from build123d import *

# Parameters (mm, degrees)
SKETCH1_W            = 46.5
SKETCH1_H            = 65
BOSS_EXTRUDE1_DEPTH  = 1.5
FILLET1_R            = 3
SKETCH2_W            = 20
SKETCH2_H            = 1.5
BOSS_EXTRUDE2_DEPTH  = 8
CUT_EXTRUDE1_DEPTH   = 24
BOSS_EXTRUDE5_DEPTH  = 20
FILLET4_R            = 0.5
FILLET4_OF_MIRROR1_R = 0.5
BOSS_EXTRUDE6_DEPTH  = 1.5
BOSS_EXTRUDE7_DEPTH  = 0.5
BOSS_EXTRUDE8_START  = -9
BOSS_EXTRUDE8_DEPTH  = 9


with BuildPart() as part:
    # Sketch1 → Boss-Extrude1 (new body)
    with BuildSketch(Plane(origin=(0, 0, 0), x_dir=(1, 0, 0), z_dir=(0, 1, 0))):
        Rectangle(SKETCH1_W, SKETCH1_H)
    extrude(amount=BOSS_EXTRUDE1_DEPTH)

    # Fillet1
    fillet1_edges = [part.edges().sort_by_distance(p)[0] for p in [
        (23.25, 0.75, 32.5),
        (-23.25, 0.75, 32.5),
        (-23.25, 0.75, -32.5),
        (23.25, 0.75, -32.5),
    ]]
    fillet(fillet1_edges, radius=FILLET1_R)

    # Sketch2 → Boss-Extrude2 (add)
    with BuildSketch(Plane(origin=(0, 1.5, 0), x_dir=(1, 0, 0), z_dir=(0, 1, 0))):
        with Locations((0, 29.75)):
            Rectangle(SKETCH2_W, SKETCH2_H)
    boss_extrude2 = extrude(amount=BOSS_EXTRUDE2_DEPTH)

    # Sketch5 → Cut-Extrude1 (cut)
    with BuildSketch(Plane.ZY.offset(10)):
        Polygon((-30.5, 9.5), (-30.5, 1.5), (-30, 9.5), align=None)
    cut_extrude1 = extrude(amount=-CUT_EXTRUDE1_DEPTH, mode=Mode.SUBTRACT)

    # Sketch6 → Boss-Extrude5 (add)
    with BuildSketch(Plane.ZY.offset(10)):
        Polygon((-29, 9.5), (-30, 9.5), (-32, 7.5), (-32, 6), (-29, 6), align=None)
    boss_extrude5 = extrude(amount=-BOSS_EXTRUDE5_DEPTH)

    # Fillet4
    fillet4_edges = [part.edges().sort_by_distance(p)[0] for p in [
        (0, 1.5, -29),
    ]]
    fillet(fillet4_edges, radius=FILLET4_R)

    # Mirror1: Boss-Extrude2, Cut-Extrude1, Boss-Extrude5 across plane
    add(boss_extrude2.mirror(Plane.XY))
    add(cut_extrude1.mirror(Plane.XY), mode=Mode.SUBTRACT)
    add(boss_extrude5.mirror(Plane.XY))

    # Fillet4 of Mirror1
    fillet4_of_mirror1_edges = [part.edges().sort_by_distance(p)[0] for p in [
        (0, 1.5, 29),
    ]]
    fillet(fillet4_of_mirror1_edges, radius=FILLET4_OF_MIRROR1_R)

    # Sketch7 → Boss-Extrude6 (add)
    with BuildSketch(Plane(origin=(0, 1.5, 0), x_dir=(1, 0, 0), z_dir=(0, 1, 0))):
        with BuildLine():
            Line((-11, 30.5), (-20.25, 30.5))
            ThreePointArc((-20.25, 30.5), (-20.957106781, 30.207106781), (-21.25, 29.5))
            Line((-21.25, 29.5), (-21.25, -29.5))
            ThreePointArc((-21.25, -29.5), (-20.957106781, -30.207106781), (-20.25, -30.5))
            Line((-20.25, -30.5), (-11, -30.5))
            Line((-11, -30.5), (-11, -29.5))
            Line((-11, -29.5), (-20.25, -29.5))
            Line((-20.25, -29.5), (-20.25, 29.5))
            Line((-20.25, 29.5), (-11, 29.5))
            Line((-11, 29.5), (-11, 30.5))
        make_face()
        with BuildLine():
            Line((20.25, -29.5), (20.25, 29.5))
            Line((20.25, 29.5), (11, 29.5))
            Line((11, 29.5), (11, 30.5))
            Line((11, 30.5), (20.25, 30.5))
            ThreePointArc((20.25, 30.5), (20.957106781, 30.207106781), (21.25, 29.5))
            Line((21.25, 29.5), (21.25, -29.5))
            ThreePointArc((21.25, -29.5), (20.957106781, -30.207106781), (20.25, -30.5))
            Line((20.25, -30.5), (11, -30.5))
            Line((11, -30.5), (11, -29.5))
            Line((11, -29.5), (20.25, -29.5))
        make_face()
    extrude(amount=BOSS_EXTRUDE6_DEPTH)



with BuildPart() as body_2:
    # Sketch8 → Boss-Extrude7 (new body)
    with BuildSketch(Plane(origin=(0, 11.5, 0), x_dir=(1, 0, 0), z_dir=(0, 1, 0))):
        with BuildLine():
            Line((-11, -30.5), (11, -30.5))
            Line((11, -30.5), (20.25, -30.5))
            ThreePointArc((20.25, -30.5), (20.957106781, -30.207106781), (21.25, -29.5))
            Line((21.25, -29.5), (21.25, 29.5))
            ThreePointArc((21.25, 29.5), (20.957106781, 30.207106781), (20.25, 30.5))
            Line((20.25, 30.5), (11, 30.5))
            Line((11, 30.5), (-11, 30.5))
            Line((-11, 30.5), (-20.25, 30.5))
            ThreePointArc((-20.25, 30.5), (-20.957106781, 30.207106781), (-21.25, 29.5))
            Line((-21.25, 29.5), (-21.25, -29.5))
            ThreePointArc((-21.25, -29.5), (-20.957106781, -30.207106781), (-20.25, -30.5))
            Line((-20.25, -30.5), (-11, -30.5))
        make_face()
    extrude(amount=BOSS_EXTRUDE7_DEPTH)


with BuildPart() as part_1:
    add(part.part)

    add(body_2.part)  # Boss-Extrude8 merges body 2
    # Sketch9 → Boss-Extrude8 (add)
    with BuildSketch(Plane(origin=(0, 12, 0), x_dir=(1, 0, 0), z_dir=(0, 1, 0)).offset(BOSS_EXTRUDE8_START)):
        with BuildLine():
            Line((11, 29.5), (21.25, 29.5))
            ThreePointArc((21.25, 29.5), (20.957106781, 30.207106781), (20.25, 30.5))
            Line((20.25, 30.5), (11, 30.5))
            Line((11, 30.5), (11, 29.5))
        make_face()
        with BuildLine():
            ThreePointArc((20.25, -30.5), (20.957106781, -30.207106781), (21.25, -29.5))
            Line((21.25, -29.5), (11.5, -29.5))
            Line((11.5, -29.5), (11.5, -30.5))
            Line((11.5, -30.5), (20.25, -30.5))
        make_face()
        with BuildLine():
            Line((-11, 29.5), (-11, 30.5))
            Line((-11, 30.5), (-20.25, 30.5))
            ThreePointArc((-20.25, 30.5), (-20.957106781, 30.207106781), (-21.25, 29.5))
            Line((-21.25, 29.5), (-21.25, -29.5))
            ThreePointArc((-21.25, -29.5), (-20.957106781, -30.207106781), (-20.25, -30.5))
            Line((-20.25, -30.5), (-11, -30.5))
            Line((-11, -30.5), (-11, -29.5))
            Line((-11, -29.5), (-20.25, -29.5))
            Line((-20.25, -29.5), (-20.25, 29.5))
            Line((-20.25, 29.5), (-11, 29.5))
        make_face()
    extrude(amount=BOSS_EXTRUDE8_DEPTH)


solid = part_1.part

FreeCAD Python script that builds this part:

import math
import FreeCAD as App
import Part
import Sketcher
from FreeCAD import Vector
Q = App.Units.Quantity


def edges_at(feature, points):
    """Names of the edges that pass closest to the given points."""
    edges = feature.Shape.Edges
    near = lambda p: min(range(len(edges)), key=lambda i: edges[i].distToShape(Part.Vertex(*p))[0])
    return sorted({f"Edge{near(p) + 1}" for p in points})

doc = App.newDocument("Part")
params = doc.addObject("Spreadsheet::Sheet", "Params")
for row, (alias, value) in enumerate([
    ("sketch1_height", "65 mm"),
    ("sketch1_width", "46.5 mm"),
    ("pad1_length", "1.5 mm"),
    ("fillet_radius", "3 mm"),
    ("sketch2_width", "20 mm"),
    ("sketch2_height", "1.5 mm"),
    ("pad2_length", "8 mm"),
    ("sketch3_width", "8 mm"),
    ("sketch3_height", "0.5 mm"),
    ("pocket1_length", "24 mm"),
    ("sketch4_height", "1 mm"),
    ("sketch4_height2", "3 mm"),
    ("sketch4_width", "1.5 mm"),
    ("pad3_length", "20 mm"),
    ("fillet2_radius", "0.5 mm"),
    ("fillet3_radius", "0.5 mm"),
    ("sketch5_radius", "1 mm"),
    ("sketch5_height", "59 mm"),
    ("sketch5_width", "9.25 mm"),
    ("pad4_length", "1.5 mm"),
    ("sketch6_radius", "1 mm"),
    ("sketch6_height", "59 mm"),
    ("sketch6_width", "40.5 mm"),
    ("pad5_length", "0.5 mm"),
    ("sketch7_radius", "1 mm"),
    ("sketch7_height", "59 mm"),
    ("sketch7_width", "10.25 mm"),
    ("sketch7_width2", "9.75 mm"),
    ("pad6_length", "9 mm"),
], start=1):
    params.set(f"A{row}", alias)
    params.set(f"B{row}", "=" + value)
    params.setAlias(f"B{row}", alias)

body = doc.addObject("PartDesign::Body", "Body")

sketch1 = doc.addObject("Sketcher::SketchObject", "Sketch")
body.addObject(sketch1)
sketch1.AttachmentSupport = (doc.XZ_Plane, [""])
sketch1.MapMode = "FlatFace"
sketch1.addGeometry([
    Part.LineSegment(Vector(-23, -32, 0), Vector(-23, 32, 0)),
    Part.LineSegment(Vector(-23, 32, 0), Vector(23, 32, 0)),
    Part.LineSegment(Vector(23, 32, 0), Vector(23, -32, 0)),
    Part.LineSegment(Vector(23, -32, 0), Vector(-23, -32, 0)),
], False)
sketch1.addConstraint([
    Sketcher.Constraint("Coincident", 0, 2, 1, 1),
    Sketcher.Constraint("Coincident", 1, 2, 2, 1),
    Sketcher.Constraint("Coincident", 2, 2, 3, 1),
    Sketcher.Constraint("Coincident", 3, 2, 0, 1),
    Sketcher.Constraint("Vertical", 0),
    Sketcher.Constraint("Horizontal", 1),
    Sketcher.Constraint("Vertical", 2),
    Sketcher.Constraint("Horizontal", 3),
    Sketcher.Constraint("Symmetric", 0, 2, 2, 2, -1, 1),
    Sketcher.Constraint("DistanceY", 0, 1, 0, 2, 65.0),
    Sketcher.Constraint("DistanceX", 1, 1, 1, 2, 46.5),
])
sketch1.setExpression("Constraints[9]", "Params.sketch1_height")
sketch1.setExpression("Constraints[10]", "Params.sketch1_width")
pad1 = doc.addObject("PartDesign::Pad", "Pad")
body.addObject(pad1)
pad1.Profile = sketch1
pad1.setExpression("Length", "Params.pad1_length")
pad1.Reversed = True
doc.recompute()

fillet = doc.addObject("PartDesign::Fillet", "Fillet")
body.addObject(fillet)
fillet.Base = (pad1, edges_at(pad1, [
    (23.25, 0.75, 32.5),
    (-23.25, 0.75, 32.5),
    (-23.25, 0.75, -32.5),
    (23.25, 0.75, -32.5),
]))
fillet.setExpression("Radius", "Params.fillet_radius")

sketch2 = doc.addObject("Sketcher::SketchObject", "Sketch001")
body.addObject(sketch2)
sketch2.AttachmentSupport = (doc.XZ_Plane, [""])
sketch2.MapMode = "FlatFace"
sketch2.AttachmentOffset = App.Placement(Vector(0, 0, -1.5), App.Rotation())
sketch2.addGeometry([
    Part.LineSegment(Vector(-10, -30.5, 0), Vector(-10, -29, 0)),
    Part.LineSegment(Vector(-10, -29, 0), Vector(10, -29, 0)),
    Part.LineSegment(Vector(10, -29, 0), Vector(10, -30.5, 0)),
    Part.LineSegment(Vector(10, -30.5, 0), Vector(-10, -30.5, 0)),
], False)
sketch2.addConstraint([
    Sketcher.Constraint("Coincident", 0, 2, 1, 1),
    Sketcher.Constraint("Coincident", 1, 2, 2, 1),
    Sketcher.Constraint("Coincident", 2, 2, 3, 1),
    Sketcher.Constraint("Coincident", 3, 2, 0, 1),
    Sketcher.Constraint("Vertical", 0),
    Sketcher.Constraint("Horizontal", 1),
    Sketcher.Constraint("Vertical", 2),
    Sketcher.Constraint("Horizontal", 3),
    Sketcher.Constraint("DistanceX", 1, 1, 1, 2, 20.0),
    Sketcher.Constraint("DistanceY", 0, 1, 0, 2, 1.5),
    Sketcher.Constraint("DistanceX", 0, 2, -1, 1, 10.0),
    Sketcher.Constraint("DistanceY", 0, 2, -1, 1, 29.0),
])
sketch2.setExpression("Constraints[8]", "Params.sketch2_width")
sketch2.setExpression("Constraints[9]", "Params.sketch2_height")
pad2 = doc.addObject("PartDesign::Pad", "Pad001")
body.addObject(pad2)
pad2.Profile = sketch2
pad2.setExpression("Length", "Params.pad2_length")
pad2.Reversed = True

sketch3 = doc.addObject("Sketcher::SketchObject", "Sketch002")
body.addObject(sketch3)
sketch3.AttachmentSupport = (doc.YZ_Plane, [""])
sketch3.MapMode = "FlatFace"
sketch3.AttachmentOffset = App.Placement(Vector(0, 0, -10), App.Rotation())
sketch3.addGeometry([
    Part.LineSegment(Vector(9.5, -30.5, 0), Vector(1.5, -30.5, 0)),
    Part.LineSegment(Vector(1.5, -30.5, 0), Vector(9.5, -30, 0)),
    Part.LineSegment(Vector(9.5, -30, 0), Vector(9.5, -30.5, 0)),
], False)
sketch3.addConstraint([
    Sketcher.Constraint("Coincident", 0, 2, 1, 1),
    Sketcher.Constraint("Coincident", 1, 2, 2, 1),
    Sketcher.Constraint("Coincident", 2, 2, 0, 1),
    Sketcher.Constraint("Horizontal", 0),
    Sketcher.Constraint("Vertical", 2),
    Sketcher.Constraint("DistanceX", 0, 2, 0, 1, 8.0),
    Sketcher.Constraint("DistanceY", 2, 2, 2, 1, 0.5),
    Sketcher.Constraint("DistanceY", 1, 2, -1, 1, 30.0),
    Sketcher.Constraint("DistanceX", -1, 1, 0, 2, 1.5),
])
sketch3.setExpression("Constraints[5]", "Params.sketch3_width")
sketch3.setExpression("Constraints[6]", "Params.sketch3_height")
pocket1 = doc.addObject("PartDesign::Pocket", "Pocket")
body.addObject(pocket1)
pocket1.Profile = sketch3
pocket1.setExpression("Length", "Params.pocket1_length")
pocket1.Reversed = True

sketch4 = doc.addObject("Sketcher::SketchObject", "Sketch003")
body.addObject(sketch4)
sketch4.AttachmentSupport = (doc.YZ_Plane, [""])
sketch4.MapMode = "FlatFace"
sketch4.AttachmentOffset = App.Placement(Vector(0, 0, -10), App.Rotation())
sketch4.addGeometry([
    Part.LineSegment(Vector(9.5, -29, 0), Vector(9.5, -30, 0)),
    Part.LineSegment(Vector(9.5, -30, 0), Vector(7.5, -32, 0)),
    Part.LineSegment(Vector(7.5, -32, 0), Vector(6, -32, 0)),
    Part.LineSegment(Vector(6, -32, 0), Vector(6, -29, 0)),
    Part.LineSegment(Vector(6, -29, 0), Vector(9.5, -29, 0)),
], False)
sketch4.addConstraint([
    Sketcher.Constraint("Coincident", 0, 2, 1, 1),
    Sketcher.Constraint("Coincident", 1, 2, 2, 1),
    Sketcher.Constraint("Coincident", 2, 2, 3, 1),
    Sketcher.Constraint("Coincident", 3, 2, 4, 1),
    Sketcher.Constraint("Coincident", 4, 2, 0, 1),
    Sketcher.Constraint("Vertical", 0),
    Sketcher.Constraint("Horizontal", 2),
    Sketcher.Constraint("Vertical", 3),
    Sketcher.Constraint("Horizontal", 4),
    Sketcher.Constraint("DistanceY", 0, 2, 0, 1, 1.0),
    Sketcher.Constraint("DistanceY", 3, 1, 3, 2, 3.0),
    Sketcher.Constraint("Angle", 1, Q("-135 deg")),
    Sketcher.Constraint("DistanceX", 2, 2, 2, 1, 1.5),
    Sketcher.Constraint("DistanceY", 0, 2, -1, 1, 30.0),
    Sketcher.Constraint("DistanceX", -1, 1, 2, 2, 6.0),
])
sketch4.setExpression("Constraints[9]", "Params.sketch4_height")
sketch4.setExpression("Constraints[10]", "Params.sketch4_height2")
sketch4.setExpression("Constraints[12]", "Params.sketch4_width")
pad3 = doc.addObject("PartDesign::Pad", "Pad002")
body.addObject(pad3)
pad3.Profile = sketch4
pad3.setExpression("Length", "Params.pad3_length")
doc.recompute()

fillet2 = doc.addObject("PartDesign::Fillet", "Fillet001")
body.addObject(fillet2)
fillet2.Base = (pad3, edges_at(pad3, [(0, 1.5, -29)]))
fillet2.setExpression("Radius", "Params.fillet2_radius")
doc.recompute()

mirrored = doc.addObject("PartDesign::Mirrored", "Mirrored")
body.addObject(mirrored)
mirrored.Originals = [pad2, pocket1, pad3]
mirrored.MirrorPlane = (doc.XY_Plane, [""])
body.Tip = mirrored
doc.recompute()

fillet3 = doc.addObject("PartDesign::Fillet", "Fillet002")
body.addObject(fillet3)
fillet3.Base = (mirrored, edges_at(mirrored, [(0, 1.5, 29)]))
fillet3.setExpression("Radius", "Params.fillet3_radius")

sketch5 = doc.addObject("Sketcher::SketchObject", "Sketch004")
body.addObject(sketch5)
sketch5.AttachmentSupport = (doc.XZ_Plane, [""])
sketch5.MapMode = "FlatFace"
sketch5.AttachmentOffset = App.Placement(Vector(0, 0, -1.5), App.Rotation())
sketch5.addGeometry([
    Part.LineSegment(Vector(-11, -30.5, 0), Vector(-20.2, -30.5, 0)),
    Part.ArcOfCircle(Part.Circle(Vector(-20.2, -29.5, 0), Vector(0, 0, 1), 1), math.radians(-180), math.radians(-90)),
    Part.LineSegment(Vector(-21.2, -29.5, 0), Vector(-21.2, 29.5, 0)),
    Part.ArcOfCircle(Part.Circle(Vector(-20.2, 29.5, 0), Vector(0, 0, 1), 1), math.radians(90), math.radians(180)),
    Part.LineSegment(Vector(-20.2, 30.5, 0), Vector(-11, 30.5, 0)),
    Part.LineSegment(Vector(-11, 30.5, 0), Vector(-11, 29.5, 0)),
    Part.LineSegment(Vector(-11, 29.5, 0), Vector(-20.2, 29.5, 0)),
    Part.LineSegment(Vector(-20.2, 29.5, 0), Vector(-20.2, -29.5, 0)),
    Part.LineSegment(Vector(-20.2, -29.5, 0), Vector(-11, -29.5, 0)),
    Part.LineSegment(Vector(-11, -29.5, 0), Vector(-11, -30.5, 0)),
    Part.LineSegment(Vector(20.2, -29.5, 0), Vector(20.2, 29.5, 0)),
    Part.LineSegment(Vector(20.2, 29.5, 0), Vector(11, 29.5, 0)),
    Part.LineSegment(Vector(11, 29.5, 0), Vector(11, 30.5, 0)),
    Part.LineSegment(Vector(11, 30.5, 0), Vector(20.2, 30.5, 0)),
    Part.ArcOfCircle(Part.Circle(Vector(20.2, 29.5, 0), Vector(0, 0, 1), 1), math.radians(0), math.radians(90)),
    Part.LineSegment(Vector(21.2, 29.5, 0), Vector(21.2, -29.5, 0)),
    Part.ArcOfCircle(Part.Circle(Vector(20.2, -29.5, 0), Vector(0, 0, 1), 1), math.radians(-90), math.radians(0)),
    Part.LineSegment(Vector(20.2, -30.5, 0), Vector(11, -30.5, 0)),
    Part.LineSegment(Vector(11, -30.5, 0), Vector(11, -29.5, 0)),
    Part.LineSegment(Vector(11, -29.5, 0), Vector(20.2, -29.5, 0)),
], False)
sketch5.addConstraint([
    Sketcher.Constraint("Tangent", 0, 2, 1, 2),
    Sketcher.Constraint("Tangent", 1, 1, 2, 1),
    Sketcher.Constraint("Tangent", 2, 2, 3, 2),
    Sketcher.Constraint("Tangent", 3, 1, 4, 1),
    Sketcher.Constraint("Coincident", 4, 2, 5, 1),
    Sketcher.Constraint("Coincident", 5, 2, 6, 1),
    Sketcher.Constraint("Coincident", 6, 2, 7, 1),
    Sketcher.Constraint("Coincident", 7, 2, 8, 1),
    Sketcher.Constraint("Coincident", 8, 2, 9, 1),
    Sketcher.Constraint("Coincident", 9, 2, 0, 1),
    Sketcher.Constraint("Coincident", 10, 2, 11, 1),
    Sketcher.Constraint("Coincident", 11, 2, 12, 1),
    Sketcher.Constraint("Coincident", 12, 2, 13, 1),
    Sketcher.Constraint("Tangent", 13, 2, 14, 2),
    Sketcher.Constraint("Tangent", 14, 1, 15, 1),
    Sketcher.Constraint("Tangent", 15, 2, 16, 2),
    Sketcher.Constraint("Tangent", 16, 1, 17, 1),
    Sketcher.Constraint("Coincident", 17, 2, 18, 1),
    Sketcher.Constraint("Coincident", 18, 2, 19, 1),
    Sketcher.Constraint("Coincident", 19, 2, 10, 1),
    Sketcher.Constraint("Horizontal", 0),
    Sketcher.Constraint("Vertical", 2),
    Sketcher.Constraint("Horizontal", 4),
    Sketcher.Constraint("Vertical", 5),
    Sketcher.Constraint("Horizontal", 6),
    Sketcher.Constraint("Vertical", 7),
    Sketcher.Constraint("Horizontal", 8),
    Sketcher.Constraint("Vertical", 9),
    Sketcher.Constraint("Vertical", 10),
    Sketcher.Constraint("Horizontal", 11),
    Sketcher.Constraint("Vertical", 12),
    Sketcher.Constraint("Horizontal", 13),
    Sketcher.Constraint("Vertical", 15),
    Sketcher.Constraint("Horizontal", 17),
    Sketcher.Constraint("Vertical", 18),
    Sketcher.Constraint("Horizontal", 19),
    Sketcher.Constraint("Coincident", 6, 2, 3, 3),
    Sketcher.Constraint("Coincident", 7, 2, 1, 3),
    Sketcher.Constraint("Coincident", 10, 2, 14, 3),
    Sketcher.Constraint("Coincident", 19, 2, 16, 3),
    Sketcher.Constraint("Equal", 3, 14),
    Sketcher.Constraint("Symmetric", 1, 3, 14, 3, -1, 1),
    Sketcher.Constraint("Symmetric", 4, 2, 17, 2, -1, 1),
    Sketcher.Constraint("Symmetric", 5, 2, 11, 2, -2),
    Sketcher.Constraint("Vertical", 5, 2, 8, 2),
    Sketcher.Constraint("Radius", 1, 1.0),
    Sketcher.Constraint("DistanceY", 2, 1, 2, 2, 59.0),
    Sketcher.Constraint("DistanceX", 4, 2, -1, 1, 11.0),
    Sketcher.Constraint("DistanceX", 0, 2, 0, 1, 9.25),
])
sketch5.setExpression("Constraints[45]", "Params.sketch5_radius")
sketch5.setExpression("Constraints[46]", "Params.sketch5_height")
sketch5.setExpression("Constraints[48]", "Params.sketch5_width")
pad4 = doc.addObject("PartDesign::Pad", "Pad003")
body.addObject(pad4)
pad4.Profile = sketch5
pad4.setExpression("Length", "Params.pad4_length")
pad4.Reversed = True
body2 = doc.addObject("PartDesign::Body", "Body001")

sketch6 = doc.addObject("Sketcher::SketchObject", "Sketch005")
body2.addObject(sketch6)
sketch6.AttachmentSupport = (doc.getObject("XZ_Plane001"), [""])
sketch6.MapMode = "FlatFace"
sketch6.AttachmentOffset = App.Placement(Vector(0, 0, -11.5), App.Rotation())
sketch6.addGeometry([
    Part.ArcOfCircle(Part.Circle(Vector(20.2, 29.5, 0), Vector(0, 0, 1), 1), math.radians(0), math.radians(90)),
    Part.LineSegment(Vector(21.2, 29.5, 0), Vector(21.2, -29.5, 0)),
    Part.ArcOfCircle(Part.Circle(Vector(20.2, -29.5, 0), Vector(0, 0, 1), 1), math.radians(-90), math.radians(0)),
    Part.LineSegment(Vector(20.2, -30.5, 0), Vector(-20.2, -30.5, 0)),
    Part.ArcOfCircle(Part.Circle(Vector(-20.2, -29.5, 0), Vector(0, 0, 1), 1), math.radians(-180), math.radians(-90)),
    Part.LineSegment(Vector(-21.2, -29.5, 0), Vector(-21.2, 29.5, 0)),
    Part.ArcOfCircle(Part.Circle(Vector(-20.2, 29.5, 0), Vector(0, 0, 1), 1), math.radians(90), math.radians(180)),
    Part.LineSegment(Vector(-20.2, 30.5, 0), Vector(20.2, 30.5, 0)),
], False)
sketch6.addConstraint([
    Sketcher.Constraint("Tangent", 0, 1, 1, 1),
    Sketcher.Constraint("Tangent", 1, 2, 2, 2),
    Sketcher.Constraint("Tangent", 2, 1, 3, 1),
    Sketcher.Constraint("Tangent", 3, 2, 4, 2),
    Sketcher.Constraint("Tangent", 4, 1, 5, 1),
    Sketcher.Constraint("Tangent", 5, 2, 6, 2),
    Sketcher.Constraint("Tangent", 6, 1, 7, 1),
    Sketcher.Constraint("Tangent", 7, 2, 0, 2),
    Sketcher.Constraint("Vertical", 1),
    Sketcher.Constraint("Horizontal", 3),
    Sketcher.Constraint("Vertical", 5),
    Sketcher.Constraint("Horizontal", 7),
    Sketcher.Constraint("Equal", 0, 2),
    Sketcher.Constraint("Equal", 2, 4),
    Sketcher.Constraint("Equal", 4, 6),
    Sketcher.Constraint("Symmetric", 0, 3, 4, 3, -1, 1),
    Sketcher.Constraint("Radius", 0, 1.0),
    Sketcher.Constraint("DistanceY", 1, 2, 1, 1, 59.0),
    Sketcher.Constraint("DistanceX", 3, 2, 3, 1, 40.5),
])
sketch6.setExpression("Constraints[16]", "Params.sketch6_radius")
sketch6.setExpression("Constraints[17]", "Params.sketch6_height")
sketch6.setExpression("Constraints[18]", "Params.sketch6_width")
pad5 = doc.addObject("PartDesign::Pad", "Pad004")
body2.addObject(pad5)
pad5.Profile = sketch6
pad5.setExpression("Length", "Params.pad5_length")
pad5.Reversed = True
body.AllowCompound = True
doc.recompute()

boolean = doc.addObject("PartDesign::Boolean", "Boolean")
body.addObject(boolean)
boolean.Type = "Fuse"
boolean.addObjects([body2])

sketch7 = doc.addObject("Sketcher::SketchObject", "Sketch006")
body.addObject(sketch7)
sketch7.AttachmentSupport = (doc.XZ_Plane, [""])
sketch7.MapMode = "FlatFace"
sketch7.AttachmentOffset = App.Placement(Vector(0, 0, -3), App.Rotation())
sketch7.addGeometry([
    Part.LineSegment(Vector(11, -29.5, 0), Vector(21.2, -29.5, 0)),
    Part.ArcOfCircle(Part.Circle(Vector(20.2, -29.5, 0), Vector(0, 0, 1), 1), math.radians(-90), math.radians(0)),
    Part.LineSegment(Vector(20.2, -30.5, 0), Vector(11, -30.5, 0)),
    Part.LineSegment(Vector(11, -30.5, 0), Vector(11, -29.5, 0)),
    Part.ArcOfCircle(Part.Circle(Vector(20.2, 29.5, 0), Vector(0, 0, 1), 1), math.radians(0), math.radians(90)),
    Part.LineSegment(Vector(21.2, 29.5, 0), Vector(11.5, 29.5, 0)),
    Part.LineSegment(Vector(11.5, 29.5, 0), Vector(11.5, 30.5, 0)),
    Part.LineSegment(Vector(11.5, 30.5, 0), Vector(20.2, 30.5, 0)),
    Part.LineSegment(Vector(-11, -29.5, 0), Vector(-11, -30.5, 0)),
    Part.LineSegment(Vector(-11, -30.5, 0), Vector(-20.2, -30.5, 0)),
    Part.ArcOfCircle(Part.Circle(Vector(-20.2, -29.5, 0), Vector(0, 0, 1), 1), math.radians(-180), math.radians(-90)),
    Part.LineSegment(Vector(-21.2, -29.5, 0), Vector(-21.2, 29.5, 0)),
    Part.ArcOfCircle(Part.Circle(Vector(-20.2, 29.5, 0), Vector(0, 0, 1), 1), math.radians(90), math.radians(180)),
    Part.LineSegment(Vector(-20.2, 30.5, 0), Vector(-11, 30.5, 0)),
    Part.LineSegment(Vector(-11, 30.5, 0), Vector(-11, 29.5, 0)),
    Part.LineSegment(Vector(-11, 29.5, 0), Vector(-20.2, 29.5, 0)),
    Part.LineSegment(Vector(-20.2, 29.5, 0), Vector(-20.2, -29.5, 0)),
    Part.LineSegment(Vector(-20.2, -29.5, 0), Vector(-11, -29.5, 0)),
], False)
sketch7.addConstraint([
    Sketcher.Constraint("Coincident", 0, 2, 1, 2),
    Sketcher.Constraint("Tangent", 1, 1, 2, 1),
    Sketcher.Constraint("Coincident", 2, 2, 3, 1),
    Sketcher.Constraint("Coincident", 3, 2, 0, 1),
    Sketcher.Constraint("Coincident", 4, 1, 5, 1),
    Sketcher.Constraint("Coincident", 5, 2, 6, 1),
    Sketcher.Constraint("Coincident", 6, 2, 7, 1),
    Sketcher.Constraint("Tangent", 7, 2, 4, 2),
    Sketcher.Constraint("Coincident", 8, 2, 9, 1),
    Sketcher.Constraint("Tangent", 9, 2, 10, 2),
    Sketcher.Constraint("Tangent", 10, 1, 11, 1),
    Sketcher.Constraint("Tangent", 11, 2, 12, 2),
    Sketcher.Constraint("Tangent", 12, 1, 13, 1),
    Sketcher.Constraint("Coincident", 13, 2, 14, 1),
    Sketcher.Constraint("Coincident", 14, 2, 15, 1),
    Sketcher.Constraint("Coincident", 15, 2, 16, 1),
    Sketcher.Constraint("Coincident", 16, 2, 17, 1),
    Sketcher.Constraint("Coincident", 17, 2, 8, 1),
    Sketcher.Constraint("Horizontal", 0),
    Sketcher.Constraint("Horizontal", 2),
    Sketcher.Constraint("Vertical", 3),
    Sketcher.Constraint("Horizontal", 5),
    Sketcher.Constraint("Vertical", 6),
    Sketcher.Constraint("Horizontal", 7),
    Sketcher.Constraint("Vertical", 8),
    Sketcher.Constraint("Horizontal", 9),
    Sketcher.Constraint("Vertical", 11),
    Sketcher.Constraint("Horizontal", 13),
    Sketcher.Constraint("Vertical", 14),
    Sketcher.Constraint("Horizontal", 15),
    Sketcher.Constraint("Vertical", 16),
    Sketcher.Constraint("Horizontal", 17),
    Sketcher.Constraint("Coincident", 15, 2, 12, 3),
    Sketcher.Constraint("Coincident", 16, 2, 10, 3),
    Sketcher.Constraint("Equal", 1, 4),
    Sketcher.Constraint("Equal", 4, 10),
    Sketcher.Constraint("Symmetric", 4, 3, 10, 3, -1, 1),
    Sketcher.Constraint("Symmetric", 1, 3, 12, 3, -1, 1),
    Sketcher.Constraint("Symmetric", 3, 2, 14, 2, -1, 1),
    Sketcher.Constraint("Symmetric", 2, 2, 8, 2, -2),
    Sketcher.Constraint("Horizontal", 12, 3, 4, 1),
    Sketcher.Constraint("Radius", 1, 1.0),
    Sketcher.Constraint("DistanceY", 11, 1, 11, 2, 59.0),
    Sketcher.Constraint("DistanceX", -1, 1, 2, 2, 11.0),
    Sketcher.Constraint("DistanceX", 0, 1, 0, 2, 10.25),
    Sketcher.Constraint("DistanceX", 5, 2, 5, 1, 9.75),
])
sketch7.setExpression("Constraints[41]", "Params.sketch7_radius")
sketch7.setExpression("Constraints[42]", "Params.sketch7_height")
sketch7.setExpression("Constraints[44]", "Params.sketch7_width")
sketch7.setExpression("Constraints[45]", "Params.sketch7_width2")
pad6 = doc.addObject("PartDesign::Pad", "Pad005")
body.addObject(pad6)
pad6.Profile = sketch7
pad6.setExpression("Length", "Params.pad6_length")
pad6.Reversed = True

doc.recompute()
